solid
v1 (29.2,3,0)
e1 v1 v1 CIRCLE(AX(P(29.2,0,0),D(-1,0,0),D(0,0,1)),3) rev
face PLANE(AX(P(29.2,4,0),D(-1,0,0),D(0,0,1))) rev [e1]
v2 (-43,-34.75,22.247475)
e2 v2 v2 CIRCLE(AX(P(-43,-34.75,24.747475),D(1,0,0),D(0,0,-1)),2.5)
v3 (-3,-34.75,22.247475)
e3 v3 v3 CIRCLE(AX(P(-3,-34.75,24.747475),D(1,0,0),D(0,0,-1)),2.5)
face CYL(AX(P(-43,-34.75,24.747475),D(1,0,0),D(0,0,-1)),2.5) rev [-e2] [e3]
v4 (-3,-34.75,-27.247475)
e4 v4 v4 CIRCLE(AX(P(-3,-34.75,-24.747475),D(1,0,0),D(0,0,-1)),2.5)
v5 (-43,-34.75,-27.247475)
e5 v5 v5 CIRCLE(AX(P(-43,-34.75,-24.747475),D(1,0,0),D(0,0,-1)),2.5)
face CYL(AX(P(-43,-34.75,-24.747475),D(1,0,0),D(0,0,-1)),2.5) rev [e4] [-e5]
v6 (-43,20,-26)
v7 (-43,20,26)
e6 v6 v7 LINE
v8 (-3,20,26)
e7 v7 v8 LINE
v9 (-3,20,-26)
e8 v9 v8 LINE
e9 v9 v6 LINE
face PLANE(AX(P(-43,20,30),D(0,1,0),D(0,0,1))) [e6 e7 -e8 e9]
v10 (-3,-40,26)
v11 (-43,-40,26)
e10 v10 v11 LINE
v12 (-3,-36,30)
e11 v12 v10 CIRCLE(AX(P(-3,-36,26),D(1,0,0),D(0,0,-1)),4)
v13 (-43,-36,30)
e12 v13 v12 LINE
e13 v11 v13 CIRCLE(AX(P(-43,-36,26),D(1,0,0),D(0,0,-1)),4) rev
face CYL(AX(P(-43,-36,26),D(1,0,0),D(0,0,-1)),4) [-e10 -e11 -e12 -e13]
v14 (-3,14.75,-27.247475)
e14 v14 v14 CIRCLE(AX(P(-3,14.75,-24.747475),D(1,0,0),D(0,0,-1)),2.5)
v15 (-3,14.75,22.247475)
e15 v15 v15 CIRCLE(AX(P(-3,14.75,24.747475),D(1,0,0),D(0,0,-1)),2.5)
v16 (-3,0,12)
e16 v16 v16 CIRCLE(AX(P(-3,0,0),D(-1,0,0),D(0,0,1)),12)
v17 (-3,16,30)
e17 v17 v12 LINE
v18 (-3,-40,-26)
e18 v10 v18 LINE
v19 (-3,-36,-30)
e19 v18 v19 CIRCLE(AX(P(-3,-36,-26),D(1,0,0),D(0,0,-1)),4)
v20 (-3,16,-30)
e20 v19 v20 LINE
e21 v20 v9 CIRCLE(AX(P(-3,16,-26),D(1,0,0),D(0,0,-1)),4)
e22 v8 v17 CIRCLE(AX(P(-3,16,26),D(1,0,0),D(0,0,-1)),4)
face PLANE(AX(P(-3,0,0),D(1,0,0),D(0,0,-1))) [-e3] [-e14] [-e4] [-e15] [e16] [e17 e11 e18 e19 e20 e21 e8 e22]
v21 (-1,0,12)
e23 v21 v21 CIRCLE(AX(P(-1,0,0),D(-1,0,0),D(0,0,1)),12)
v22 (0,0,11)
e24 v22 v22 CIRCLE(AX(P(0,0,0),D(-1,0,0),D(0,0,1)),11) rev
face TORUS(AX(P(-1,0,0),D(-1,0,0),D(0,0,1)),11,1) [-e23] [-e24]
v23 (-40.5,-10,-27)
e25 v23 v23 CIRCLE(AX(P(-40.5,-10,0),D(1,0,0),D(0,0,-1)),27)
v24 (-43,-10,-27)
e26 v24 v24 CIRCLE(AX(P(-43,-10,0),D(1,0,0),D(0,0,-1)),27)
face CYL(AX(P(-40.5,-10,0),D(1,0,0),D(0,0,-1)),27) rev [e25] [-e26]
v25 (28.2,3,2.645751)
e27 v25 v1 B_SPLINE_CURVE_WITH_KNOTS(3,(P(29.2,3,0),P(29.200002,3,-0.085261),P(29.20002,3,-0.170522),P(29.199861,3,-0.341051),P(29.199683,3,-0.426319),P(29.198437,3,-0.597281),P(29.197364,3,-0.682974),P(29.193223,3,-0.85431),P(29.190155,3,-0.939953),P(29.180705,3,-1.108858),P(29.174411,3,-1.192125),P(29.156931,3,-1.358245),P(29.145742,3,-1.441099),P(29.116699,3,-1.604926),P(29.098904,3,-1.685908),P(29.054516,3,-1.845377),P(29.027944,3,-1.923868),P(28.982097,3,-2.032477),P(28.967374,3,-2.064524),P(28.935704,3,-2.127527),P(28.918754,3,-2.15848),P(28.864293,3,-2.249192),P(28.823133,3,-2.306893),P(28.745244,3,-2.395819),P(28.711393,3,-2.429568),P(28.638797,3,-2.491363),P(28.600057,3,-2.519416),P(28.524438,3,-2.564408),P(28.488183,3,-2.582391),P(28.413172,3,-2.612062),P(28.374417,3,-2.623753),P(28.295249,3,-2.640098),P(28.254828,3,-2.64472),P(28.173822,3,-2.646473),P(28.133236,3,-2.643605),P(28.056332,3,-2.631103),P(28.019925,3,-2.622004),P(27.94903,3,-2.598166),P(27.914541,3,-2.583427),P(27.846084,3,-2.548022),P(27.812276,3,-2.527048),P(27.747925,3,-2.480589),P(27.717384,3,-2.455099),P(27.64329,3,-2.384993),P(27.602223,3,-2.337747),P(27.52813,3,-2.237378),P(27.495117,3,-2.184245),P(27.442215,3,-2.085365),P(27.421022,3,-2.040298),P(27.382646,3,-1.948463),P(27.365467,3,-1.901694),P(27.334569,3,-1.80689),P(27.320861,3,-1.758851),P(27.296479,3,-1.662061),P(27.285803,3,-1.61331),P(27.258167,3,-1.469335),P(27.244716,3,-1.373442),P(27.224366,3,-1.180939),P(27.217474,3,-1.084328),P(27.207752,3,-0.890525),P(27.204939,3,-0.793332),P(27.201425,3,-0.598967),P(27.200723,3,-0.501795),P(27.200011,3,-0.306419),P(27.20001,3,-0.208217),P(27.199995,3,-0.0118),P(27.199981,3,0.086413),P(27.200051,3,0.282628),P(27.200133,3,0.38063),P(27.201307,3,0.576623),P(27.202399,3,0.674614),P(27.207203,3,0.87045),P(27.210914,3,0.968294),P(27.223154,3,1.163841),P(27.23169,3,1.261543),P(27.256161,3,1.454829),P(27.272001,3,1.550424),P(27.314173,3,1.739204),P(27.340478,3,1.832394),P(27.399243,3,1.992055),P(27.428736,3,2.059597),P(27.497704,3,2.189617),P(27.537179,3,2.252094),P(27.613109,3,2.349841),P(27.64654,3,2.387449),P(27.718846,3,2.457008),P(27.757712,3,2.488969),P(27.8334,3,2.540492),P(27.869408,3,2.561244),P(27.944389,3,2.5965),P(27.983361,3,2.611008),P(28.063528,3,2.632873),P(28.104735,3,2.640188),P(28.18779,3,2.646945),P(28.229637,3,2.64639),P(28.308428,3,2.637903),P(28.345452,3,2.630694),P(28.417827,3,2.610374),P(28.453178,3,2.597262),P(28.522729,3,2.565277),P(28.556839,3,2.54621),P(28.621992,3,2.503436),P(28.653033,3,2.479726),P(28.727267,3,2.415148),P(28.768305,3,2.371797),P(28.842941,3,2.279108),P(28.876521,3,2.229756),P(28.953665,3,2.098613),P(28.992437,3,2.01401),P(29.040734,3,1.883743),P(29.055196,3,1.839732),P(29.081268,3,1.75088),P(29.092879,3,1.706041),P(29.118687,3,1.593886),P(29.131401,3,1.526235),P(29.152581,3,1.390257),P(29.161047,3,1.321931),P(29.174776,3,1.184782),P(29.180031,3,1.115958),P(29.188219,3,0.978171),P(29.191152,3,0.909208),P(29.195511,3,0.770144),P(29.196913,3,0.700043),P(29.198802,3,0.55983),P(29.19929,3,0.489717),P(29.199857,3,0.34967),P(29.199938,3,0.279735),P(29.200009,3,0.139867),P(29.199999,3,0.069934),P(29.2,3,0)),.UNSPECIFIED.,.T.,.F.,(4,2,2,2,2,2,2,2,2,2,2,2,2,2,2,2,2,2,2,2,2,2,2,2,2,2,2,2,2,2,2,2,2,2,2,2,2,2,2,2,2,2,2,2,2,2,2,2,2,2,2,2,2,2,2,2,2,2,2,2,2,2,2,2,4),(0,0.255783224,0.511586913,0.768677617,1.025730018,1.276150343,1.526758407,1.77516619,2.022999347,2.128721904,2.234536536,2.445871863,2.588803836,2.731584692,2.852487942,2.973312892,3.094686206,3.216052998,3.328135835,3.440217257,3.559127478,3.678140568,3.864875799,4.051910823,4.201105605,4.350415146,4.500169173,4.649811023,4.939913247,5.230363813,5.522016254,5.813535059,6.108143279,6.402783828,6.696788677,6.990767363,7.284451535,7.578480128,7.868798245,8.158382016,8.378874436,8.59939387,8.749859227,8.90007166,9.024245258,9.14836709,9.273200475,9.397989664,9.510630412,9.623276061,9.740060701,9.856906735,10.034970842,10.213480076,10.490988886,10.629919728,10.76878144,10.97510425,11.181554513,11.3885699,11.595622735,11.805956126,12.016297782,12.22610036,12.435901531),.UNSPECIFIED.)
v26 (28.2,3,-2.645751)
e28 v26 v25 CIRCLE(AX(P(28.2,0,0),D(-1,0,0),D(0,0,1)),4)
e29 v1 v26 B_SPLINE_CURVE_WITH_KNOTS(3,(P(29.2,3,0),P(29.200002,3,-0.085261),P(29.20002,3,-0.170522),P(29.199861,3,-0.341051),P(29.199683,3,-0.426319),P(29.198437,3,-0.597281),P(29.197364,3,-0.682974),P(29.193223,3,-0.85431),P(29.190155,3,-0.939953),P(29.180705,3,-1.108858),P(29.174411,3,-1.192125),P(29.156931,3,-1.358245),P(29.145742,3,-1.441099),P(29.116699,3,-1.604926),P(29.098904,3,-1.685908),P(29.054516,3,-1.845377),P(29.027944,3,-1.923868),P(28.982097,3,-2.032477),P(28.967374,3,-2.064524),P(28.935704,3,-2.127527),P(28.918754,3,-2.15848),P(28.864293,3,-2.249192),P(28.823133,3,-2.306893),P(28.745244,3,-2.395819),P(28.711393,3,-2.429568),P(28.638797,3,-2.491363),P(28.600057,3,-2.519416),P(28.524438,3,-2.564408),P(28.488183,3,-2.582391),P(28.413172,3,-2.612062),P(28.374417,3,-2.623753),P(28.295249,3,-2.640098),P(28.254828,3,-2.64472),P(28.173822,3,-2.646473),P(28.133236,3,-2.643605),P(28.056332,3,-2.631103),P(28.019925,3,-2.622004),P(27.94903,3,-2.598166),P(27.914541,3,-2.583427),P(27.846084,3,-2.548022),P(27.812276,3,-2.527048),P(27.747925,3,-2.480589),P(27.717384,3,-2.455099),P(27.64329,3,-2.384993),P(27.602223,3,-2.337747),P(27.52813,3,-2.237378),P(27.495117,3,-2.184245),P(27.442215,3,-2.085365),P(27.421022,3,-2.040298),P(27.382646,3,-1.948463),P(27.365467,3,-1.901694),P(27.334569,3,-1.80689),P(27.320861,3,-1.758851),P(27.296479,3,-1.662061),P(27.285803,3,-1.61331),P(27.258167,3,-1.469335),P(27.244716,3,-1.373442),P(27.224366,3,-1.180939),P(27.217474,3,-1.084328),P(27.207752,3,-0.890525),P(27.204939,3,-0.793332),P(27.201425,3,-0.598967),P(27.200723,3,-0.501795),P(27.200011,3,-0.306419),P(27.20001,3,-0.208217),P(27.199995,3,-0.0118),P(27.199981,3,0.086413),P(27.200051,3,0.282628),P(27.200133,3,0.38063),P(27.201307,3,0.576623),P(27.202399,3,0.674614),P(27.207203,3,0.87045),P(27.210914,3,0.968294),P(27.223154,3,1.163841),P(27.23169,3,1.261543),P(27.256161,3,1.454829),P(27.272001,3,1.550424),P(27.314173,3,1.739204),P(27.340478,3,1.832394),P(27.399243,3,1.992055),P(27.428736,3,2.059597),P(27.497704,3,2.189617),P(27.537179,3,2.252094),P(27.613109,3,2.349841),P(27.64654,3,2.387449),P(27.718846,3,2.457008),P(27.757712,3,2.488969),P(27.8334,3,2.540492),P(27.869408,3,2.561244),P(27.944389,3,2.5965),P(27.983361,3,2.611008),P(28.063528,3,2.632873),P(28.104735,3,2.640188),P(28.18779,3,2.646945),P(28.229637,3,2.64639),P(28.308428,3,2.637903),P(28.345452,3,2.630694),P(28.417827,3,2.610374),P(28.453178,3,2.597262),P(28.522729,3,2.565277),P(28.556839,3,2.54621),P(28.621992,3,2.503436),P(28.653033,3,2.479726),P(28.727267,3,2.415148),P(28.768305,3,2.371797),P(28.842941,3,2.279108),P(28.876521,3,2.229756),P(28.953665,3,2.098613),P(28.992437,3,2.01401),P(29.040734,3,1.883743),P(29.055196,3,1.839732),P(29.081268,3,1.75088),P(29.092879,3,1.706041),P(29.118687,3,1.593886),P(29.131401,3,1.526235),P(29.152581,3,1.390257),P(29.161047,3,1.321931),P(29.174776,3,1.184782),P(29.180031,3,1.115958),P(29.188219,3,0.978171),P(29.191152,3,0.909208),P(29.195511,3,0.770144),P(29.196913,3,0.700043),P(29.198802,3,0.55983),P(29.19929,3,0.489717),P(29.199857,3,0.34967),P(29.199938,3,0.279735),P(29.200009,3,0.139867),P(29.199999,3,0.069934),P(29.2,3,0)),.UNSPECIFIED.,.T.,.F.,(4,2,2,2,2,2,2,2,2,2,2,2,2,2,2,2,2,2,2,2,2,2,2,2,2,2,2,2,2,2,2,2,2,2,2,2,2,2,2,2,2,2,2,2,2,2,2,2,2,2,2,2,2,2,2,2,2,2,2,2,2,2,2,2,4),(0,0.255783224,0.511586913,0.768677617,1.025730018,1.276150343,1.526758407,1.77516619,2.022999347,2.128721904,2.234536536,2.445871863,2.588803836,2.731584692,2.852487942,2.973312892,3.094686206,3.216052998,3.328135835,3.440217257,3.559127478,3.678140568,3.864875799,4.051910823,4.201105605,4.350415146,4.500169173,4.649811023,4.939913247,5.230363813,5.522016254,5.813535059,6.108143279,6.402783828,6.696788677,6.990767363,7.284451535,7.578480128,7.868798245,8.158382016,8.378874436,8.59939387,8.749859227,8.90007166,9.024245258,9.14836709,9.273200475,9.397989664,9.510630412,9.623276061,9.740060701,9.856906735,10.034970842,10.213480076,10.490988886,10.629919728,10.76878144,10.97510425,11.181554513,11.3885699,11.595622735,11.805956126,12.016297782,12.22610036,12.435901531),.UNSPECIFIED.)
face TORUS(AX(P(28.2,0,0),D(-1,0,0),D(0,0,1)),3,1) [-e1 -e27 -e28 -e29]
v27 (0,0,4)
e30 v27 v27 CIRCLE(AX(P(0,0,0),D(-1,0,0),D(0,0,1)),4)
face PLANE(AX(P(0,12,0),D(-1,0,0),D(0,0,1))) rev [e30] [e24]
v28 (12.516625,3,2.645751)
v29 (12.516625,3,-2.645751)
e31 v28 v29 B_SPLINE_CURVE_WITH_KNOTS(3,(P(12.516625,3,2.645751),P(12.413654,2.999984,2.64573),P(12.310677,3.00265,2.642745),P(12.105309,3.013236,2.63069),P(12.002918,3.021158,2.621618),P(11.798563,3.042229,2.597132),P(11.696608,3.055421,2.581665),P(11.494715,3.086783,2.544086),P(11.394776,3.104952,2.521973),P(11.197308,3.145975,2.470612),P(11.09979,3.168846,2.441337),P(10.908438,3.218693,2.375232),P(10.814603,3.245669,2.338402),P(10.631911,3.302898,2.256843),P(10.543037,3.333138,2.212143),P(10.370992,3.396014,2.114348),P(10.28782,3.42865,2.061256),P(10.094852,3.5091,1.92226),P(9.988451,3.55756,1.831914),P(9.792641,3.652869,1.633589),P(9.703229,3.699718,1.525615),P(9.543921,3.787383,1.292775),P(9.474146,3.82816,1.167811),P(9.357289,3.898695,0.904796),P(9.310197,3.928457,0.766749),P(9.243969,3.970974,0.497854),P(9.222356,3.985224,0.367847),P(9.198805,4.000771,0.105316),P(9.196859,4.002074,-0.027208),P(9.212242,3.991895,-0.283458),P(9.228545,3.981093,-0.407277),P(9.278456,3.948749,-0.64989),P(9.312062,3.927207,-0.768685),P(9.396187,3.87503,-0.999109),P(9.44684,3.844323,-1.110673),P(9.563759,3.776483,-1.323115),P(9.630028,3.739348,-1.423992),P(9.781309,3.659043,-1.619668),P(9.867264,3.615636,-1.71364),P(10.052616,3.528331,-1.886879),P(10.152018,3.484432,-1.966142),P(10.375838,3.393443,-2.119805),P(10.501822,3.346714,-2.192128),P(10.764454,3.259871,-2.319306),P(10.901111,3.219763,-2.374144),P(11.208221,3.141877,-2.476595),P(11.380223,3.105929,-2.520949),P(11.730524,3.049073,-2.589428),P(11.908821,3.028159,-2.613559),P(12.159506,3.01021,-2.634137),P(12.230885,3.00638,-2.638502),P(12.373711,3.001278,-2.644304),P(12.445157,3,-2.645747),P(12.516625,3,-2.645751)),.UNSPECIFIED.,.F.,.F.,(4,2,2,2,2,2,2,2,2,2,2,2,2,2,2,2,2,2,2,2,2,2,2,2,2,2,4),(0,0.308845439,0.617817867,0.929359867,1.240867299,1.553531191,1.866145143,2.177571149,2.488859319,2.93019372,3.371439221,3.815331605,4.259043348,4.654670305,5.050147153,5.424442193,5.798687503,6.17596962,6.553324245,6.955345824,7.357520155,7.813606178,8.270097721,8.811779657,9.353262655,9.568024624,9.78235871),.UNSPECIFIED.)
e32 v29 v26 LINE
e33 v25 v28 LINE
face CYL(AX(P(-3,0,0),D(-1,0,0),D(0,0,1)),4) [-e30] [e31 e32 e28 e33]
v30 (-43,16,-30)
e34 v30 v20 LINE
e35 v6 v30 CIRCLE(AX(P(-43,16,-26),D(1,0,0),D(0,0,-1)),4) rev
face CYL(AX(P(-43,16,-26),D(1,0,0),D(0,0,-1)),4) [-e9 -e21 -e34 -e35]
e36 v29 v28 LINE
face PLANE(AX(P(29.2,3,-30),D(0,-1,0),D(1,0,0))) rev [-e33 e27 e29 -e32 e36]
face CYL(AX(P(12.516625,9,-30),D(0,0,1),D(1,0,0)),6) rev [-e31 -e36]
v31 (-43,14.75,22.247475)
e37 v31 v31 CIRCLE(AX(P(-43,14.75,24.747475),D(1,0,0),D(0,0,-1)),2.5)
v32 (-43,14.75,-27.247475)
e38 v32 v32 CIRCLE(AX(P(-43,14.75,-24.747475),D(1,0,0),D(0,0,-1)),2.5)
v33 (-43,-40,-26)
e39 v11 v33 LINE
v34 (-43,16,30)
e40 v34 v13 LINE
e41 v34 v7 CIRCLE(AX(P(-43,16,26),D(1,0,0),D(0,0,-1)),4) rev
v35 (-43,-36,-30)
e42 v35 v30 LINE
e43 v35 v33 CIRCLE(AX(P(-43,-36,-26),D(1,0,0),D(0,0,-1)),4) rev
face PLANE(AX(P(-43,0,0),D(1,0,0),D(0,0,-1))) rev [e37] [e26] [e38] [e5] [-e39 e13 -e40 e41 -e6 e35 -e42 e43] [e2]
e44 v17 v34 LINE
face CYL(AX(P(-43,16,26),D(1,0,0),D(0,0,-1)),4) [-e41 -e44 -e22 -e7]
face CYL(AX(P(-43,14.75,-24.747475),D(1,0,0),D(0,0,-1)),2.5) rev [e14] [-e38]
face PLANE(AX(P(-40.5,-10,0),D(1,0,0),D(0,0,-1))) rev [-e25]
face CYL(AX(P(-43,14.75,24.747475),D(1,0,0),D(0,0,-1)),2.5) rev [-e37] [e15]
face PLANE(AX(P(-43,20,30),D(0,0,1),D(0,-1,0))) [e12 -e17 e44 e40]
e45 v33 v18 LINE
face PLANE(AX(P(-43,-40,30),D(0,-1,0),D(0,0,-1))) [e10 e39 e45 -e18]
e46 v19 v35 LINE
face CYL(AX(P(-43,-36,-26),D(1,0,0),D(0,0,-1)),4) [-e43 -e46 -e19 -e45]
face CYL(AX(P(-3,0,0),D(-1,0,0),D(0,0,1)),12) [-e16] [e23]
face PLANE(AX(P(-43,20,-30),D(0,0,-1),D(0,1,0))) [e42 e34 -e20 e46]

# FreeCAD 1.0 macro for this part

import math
import FreeCAD as App
import Part
import Sketcher

V = App.Vector


def edges_at(feature, points):
    """Names of the edges that pass closest to the given points."""
    edges = feature.Shape.Edges
    near = lambda p: min(range(len(edges)), key=lambda i: edges[i].distToShape(Part.Vertex(*p))[0])
    return sorted({f"Edge{near(p) + 1}" for p in points})


def add_polygon(sketch, points):
    """Adds a closed chain of lines whose ends are joined by coincident constraints."""
    first, n = sketch.GeometryCount, len(points)
    for a, b in zip(points, points[1:] + points[:1]):
        sketch.addGeometry(Part.LineSegment(App.Vector(*a, 0), App.Vector(*b, 0)), False)
    for i in range(n):
        sketch.addConstraint(Sketcher.Constraint("Coincident", first + i, 2, first + (i + 1) % n, 1))

doc = App.newDocument("Part")
body = doc.addObject("PartDesign::Body", "Body")

# Sketch on YZ plane
sketch1 = body.newObject("Sketcher::SketchObject", "Sketch")
sketch1.AttachmentSupport = (doc.getObject("YZ_Plane"), [""])
sketch1.MapMode = "FlatFace"
sketch1.AttachmentOffset = App.Placement(V(0, 0, -3), App.Rotation())
add_polygon(sketch1, [(20, 30), (-40, 30), (-40, -30), (20, -30)])  # lines 0-3
sketch1.addConstraint([
    Sketcher.Constraint("Horizontal", 0),
    Sketcher.Constraint("Vertical", 1),
    Sketcher.Constraint("Horizontal", 2),
    Sketcher.Constraint("Vertical", 3),
    Sketcher.Constraint("Equal", 2, 1),
    Sketcher.Constraint("DistanceX", 0, 2, 0, 1, 60.0),
    Sketcher.Constraint("DistanceX", 0, 2, -1, 1, 40.0),
    Sketcher.Constraint("DistanceY", -1, 1, 0, 2, 30.0),
])
pad1 = body.newObject("PartDesign::Pad", "Pad")
pad1.Profile = sketch1
pad1.Length = 40
pad1.Reversed = True

# Sketch on YZ plane
sketch2 = body.newObject("Sketcher::SketchObject", "Sketch001")
sketch2.AttachmentSupport = (doc.getObject("YZ_Plane"), [""])
sketch2.MapMode = "FlatFace"
sketch2.AttachmentOffset = App.Placement(V(0, 0, -3), App.Rotation())
sketch2.addGeometry([
    Part.Circle(V(14.8, 24.7, 0), V(0, 0, 1), 2.5),
    Part.Circle(V(14.8, -24.7, 0), V(0, 0, 1), 2.5),
    Part.Circle(V(-34.8, -24.7, 0), V(0, 0, 1), 2.5),
    Part.Circle(V(-34.8, 24.7, 0), V(0, 0, 1), 2.5),
], False)
sketch2.addConstraint([
    Sketcher.Constraint("Equal", 0, 1),
    Sketcher.Constraint("Equal", 1, 2),
    Sketcher.Constraint("Equal", 2, 3),
    Sketcher.Constraint("Symmetric", 0, 3, 1, 3, -1),
    Sketcher.Constraint("Symmetric", 2, 3, 3, 3, -1),
    Sketcher.Constraint("Horizontal", 1, 3, 2, 3),
    Sketcher.Constraint("Diameter", 0, 5.0),
    Sketcher.Constraint("DistanceX", 2, 3, 1, 3, 49.5),
    Sketcher.Constraint("DistanceX", -1, 1, 0, 3, 14.75),
    Sketcher.Constraint("DistanceY", 1, 3, 0, 3, 49.494949),
])
pocket1 = body.newObject("PartDesign::Pocket", "Pocket")
pocket1.Profile = sketch2
pocket1.Type = "ThroughAll"
doc.recompute()

fillet = body.newObject("PartDesign::Fillet", "Fillet")
fillet.Base = (pocket1, edges_at(pocket1, [
    (-23, 20, 30),
    (-23, 20, -30),
    (-23, -40, -30),
    (-23, -40, 30),
]))
fillet.Radius = 4

# Sketch on XY plane
sketch3 = body.newObject("Sketcher::SketchObject", "Sketch002")
sketch3.AttachmentSupport = (doc.getObject("XY_Plane"), [""])
sketch3.MapMode = "FlatFace"
add_polygon(sketch3, [(0, 12), (-3, 12), (-3, 0), (29.2, 0), (29.2, 4), (0, 4)])  # lines 0-5
sketch3.addConstraint([
    Sketcher.Constraint("Horizontal", 0),
    Sketcher.Constraint("Vertical", 1),
    Sketcher.Constraint("Horizontal", 2),
    Sketcher.Constraint("Vertical", 3),
    Sketcher.Constraint("Horizontal", 4),
    Sketcher.Constraint("Vertical", 5),
    Sketcher.Constraint("PointOnObject", 1, 2, -1),
    Sketcher.Constraint("PointOnObject", 4, 2, -2),
    Sketcher.Constraint("DistanceX", 0, 2, 0, 1, 3.0),
    Sketcher.Constraint("DistanceY", 1, 2, 1, 1, 12.0),
    Sketcher.Constraint("DistanceY", 3, 1, 3, 2, 4.0),
    Sketcher.Constraint("DistanceX", 2, 1, 2, 2, 32.2),
])
revolution = body.newObject("PartDesign::Revolution", "Revolution")
revolution.Profile = sketch3
revolution.ReferenceAxis = (sketch3, ["H_Axis"])
revolution.Angle = 360
doc.recompute()

fillet2 = body.newObject("PartDesign::Fillet", "Fillet001")
fillet2.Base = (revolution, edges_at(revolution, [(0, 0, -12), (29.2, 0, -4)]))
fillet2.Radius = 1

# Sketch on XY plane
sketch4 = body.newObject("Sketcher::SketchObject", "Sketch003")
sketch4.AttachmentSupport = (doc.getObject("XY_Plane"), [""])
sketch4.MapMode = "FlatFace"
sketch4.addGeometry([
    Part.LineSegment(V(29.2, 4, 0), V(9.2, 4, 0)),
    Part.ArcOfCircle(Part.Circle(V(12.5, 9, 0), V(0, 0, 1), 6), math.radians(-124), math.radians(-90)),
    Part.LineSegment(V(12.5, 3, 0), V(29.2, 3, 0)),
    Part.LineSegment(V(29.2, 3, 0), V(29.2, 4, 0)),
], False)
sketch4.addConstraint([
    Sketcher.Constraint("Coincident", 0, 2, 1, 1),
    Sketcher.Constraint("Tangent", 1, 2, 2, 1),
    Sketcher.Constraint("Coincident", 2, 2, 3, 1),
    Sketcher.Constraint("Coincident", 3, 2, 0, 1),
    Sketcher.Constraint("Horizontal", 0),
    Sketcher.Constraint("Horizontal", 2),
    Sketcher.Constraint("Vertical", 3),
    Sketcher.Constraint("Radius", 1, 6.0),
    Sketcher.Constraint("DistanceX", 0, 2, 0, 1, 20.0),
    Sketcher.Constraint("DistanceY", 3, 1, 3, 2, 1.0),
    Sketcher.Constraint("DistanceY", -1, 1, 1, 3, 9.0),
    Sketcher.Constraint("DistanceX", -1, 1, 0, 2, 9.2),
])
pocket2 = body.newObject("PartDesign::Pocket", "Pocket001")
pocket2.Profile = sketch4
pocket2.Type = "ThroughAll"
pocket2.Midplane = True

# Sketch on XY plane
sketch5 = body.newObject("Sketcher::SketchObject", "Sketch004")
sketch5.AttachmentSupport = (doc.getObject("XY_Plane"), [""])
sketch5.MapMode = "FlatFace"
add_polygon(sketch5, [(-43, 17), (-43, -10), (-40.5, -10), (-40.5, 17)])  # lines 0-3
sketch5.addGeometry(Part.LineSegment(V(-40.5, -10, 0), V(-43, -10, 0)), True)  # axis
sketch5.addConstraint([
    Sketcher.Constraint("Vertical", 0),
    Sketcher.Constraint("Horizontal", 1),
    Sketcher.Constraint("Vertical", 2),
    Sketcher.Constraint("Horizontal", 3),
    Sketcher.Constraint("Horizontal", 4),
    Sketcher.Constraint("Coincident", 4, 1, 1, 2),
    Sketcher.Constraint("Vertical", 3, 2, 4, 2),
    Sketcher.Constraint("DistanceY", 0, 2, 0, 1, 27.0),
    Sketcher.Constraint("DistanceX", 1, 1, 1, 2, 2.5),
    Sketcher.Constraint("DistanceX", 0, 2, -1, 1, 43.0),
    Sketcher.Constraint("DistanceY", 0, 2, -1, 1, 10.0),
])
groove = body.newObject("PartDesign::Groove", "Groove")
groove.Profile = sketch5
groove.ReferenceAxis = (sketch5, ["Axis0"])
groove.Angle = 360

doc.recompute()
